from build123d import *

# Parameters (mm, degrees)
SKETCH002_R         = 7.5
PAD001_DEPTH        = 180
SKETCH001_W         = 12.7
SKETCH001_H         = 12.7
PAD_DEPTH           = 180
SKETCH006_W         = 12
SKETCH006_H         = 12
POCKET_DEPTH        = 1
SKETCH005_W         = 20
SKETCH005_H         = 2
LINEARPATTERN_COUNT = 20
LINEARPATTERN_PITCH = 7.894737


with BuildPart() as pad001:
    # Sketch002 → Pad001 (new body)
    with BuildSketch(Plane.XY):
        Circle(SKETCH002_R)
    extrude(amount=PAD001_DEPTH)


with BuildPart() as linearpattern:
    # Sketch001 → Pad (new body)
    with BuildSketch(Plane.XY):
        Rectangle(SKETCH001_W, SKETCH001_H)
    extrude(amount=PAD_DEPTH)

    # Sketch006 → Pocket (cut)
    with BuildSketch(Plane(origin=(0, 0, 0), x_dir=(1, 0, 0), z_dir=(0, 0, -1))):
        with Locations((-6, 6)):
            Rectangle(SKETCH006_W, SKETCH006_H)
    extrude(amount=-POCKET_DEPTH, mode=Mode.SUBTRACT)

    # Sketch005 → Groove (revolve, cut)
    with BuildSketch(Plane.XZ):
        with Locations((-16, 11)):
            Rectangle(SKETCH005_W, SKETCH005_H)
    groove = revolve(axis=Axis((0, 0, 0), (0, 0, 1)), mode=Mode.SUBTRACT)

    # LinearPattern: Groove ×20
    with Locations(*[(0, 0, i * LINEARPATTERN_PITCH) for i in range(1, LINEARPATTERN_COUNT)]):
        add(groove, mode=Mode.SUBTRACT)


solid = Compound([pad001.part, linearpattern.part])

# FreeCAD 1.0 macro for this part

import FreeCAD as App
import Part
import Sketcher

doc = App.newDocument("Part")
body = doc.addObject("PartDesign::Body", "Body")

sketch1 = body.newObject("Sketcher::SketchObject", "Sketch")
sketch1.AttachmentSupport = (doc.getObject("XY_Plane"), [""])
sketch1.MapMode = "FlatFace"
sketch1.addGeometry(Part.Circle(App.Vector(0, 0, 0), App.Vector(0, 0, 1), 7.5), False)
sketch1.addConstraint(Sketcher.Constraint("Coincident", 0, 3, -1, 1))
sketch1.addConstraint(Sketcher.Constraint("Diameter", 0, 15.0))
pad1 = body.newObject("PartDesign::Pad", "Pad")
pad1.Profile = sketch1
pad1.Length = 180
body2 = doc.addObject("PartDesign::Body", "Body001")

sketch2 = body2.newObject("Sketcher::SketchObject", "Sketch001")
sketch2.AttachmentSupport = (doc.getObject("XY_Plane001"), [""])
sketch2.MapMode = "FlatFace"
sketch2.addGeometry(Part.LineSegment(App.Vector(-6.35, 6.35, 0), App.Vector(-6.35, -6.35, 0)), False)
sketch2.addGeometry(Part.LineSegment(App.Vector(-6.35, -6.35, 0), App.Vector(6.35, -6.35, 0)), False)
sketch2.addGeometry(Part.LineSegment(App.Vector(6.35, -6.35, 0), App.Vector(6.35, 6.35, 0)), False)
sketch2.addGeometry(Part.LineSegment(App.Vector(6.35, 6.35, 0), App.Vector(-6.35, 6.35, 0)), False)
sketch2.addConstraint(Sketcher.Constraint("Coincident", 0, 2, 1, 1))
sketch2.addConstraint(Sketcher.Constraint("Coincident", 1, 2, 2, 1))
sketch2.addConstraint(Sketcher.Constraint("Coincident", 2, 2, 3, 1))
sketch2.addConstraint(Sketcher.Constraint("Coincident", 3, 2, 0, 1))
sketch2.addConstraint(Sketcher.Constraint("Vertical", 0))
sketch2.addConstraint(Sketcher.Constraint("Horizontal", 1))
sketch2.addConstraint(Sketcher.Constraint("Vertical", 2))
sketch2.addConstraint(Sketcher.Constraint("Horizontal", 3))
sketch2.addConstraint(Sketcher.Constraint("Symmetric", 0, 2, 2, 2, -1, 1))
sketch2.addConstraint(Sketcher.Constraint("Equal", 3, 0))
sketch2.addConstraint(Sketcher.Constraint("DistanceX", 1, 1, 1, 2, 12.7))
pad2 = body2.newObject("PartDesign::Pad", "Pad001")
pad2.Profile = sketch2
pad2.Length = 180

sketch3 = body2.newObject("Sketcher::SketchObject", "Sketch002")
sketch3.AttachmentSupport = (doc.getObject("XY_Plane001"), [""])
sketch3.MapMode = "FlatFace"
sketch3.addGeometry(Part.LineSegment(App.Vector(-12, -12, 0), App.Vector(-12, 0, 0)), False)
sketch3.addGeometry(Part.LineSegment(App.Vector(-12, 0, 0), App.Vector(0, 0, 0)), False)
sketch3.addGeometry(Part.LineSegment(App.Vector(0, 0, 0), App.Vector(0, -12, 0)), False)
sketch3.addGeometry(Part.LineSegment(App.Vector(0, -12, 0), App.Vector(-12, -12, 0)), False)
sketch3.addConstraint(Sketcher.Constraint("Coincident", 0, 2, 1, 1))
sketch3.addConstraint(Sketcher.Constraint("Coincident", 1, 2, 2, 1))
sketch3.addConstraint(Sketcher.Constraint("Coincident", 2, 2, 3, 1))
sketch3.addConstraint(Sketcher.Constraint("Coincident", 3, 2, 0, 1))
sketch3.addConstraint(Sketcher.Constraint("Vertical", 0))
sketch3.addConstraint(Sketcher.Constraint("Horizontal", 1))
sketch3.addConstraint(Sketcher.Constraint("Vertical", 2))
sketch3.addConstraint(Sketcher.Constraint("Horizontal", 3))
sketch3.addConstraint(Sketcher.Constraint("Coincident", 1, 2, -1, 1))
sketch3.addConstraint(Sketcher.Constraint("Equal", 3, 0))
sketch3.addConstraint(Sketcher.Constraint("DistanceX", 1, 1, 1, 2, 12.0))
pocket1 = body2.newObject("PartDesign::Pocket", "Pocket")
pocket1.Profile = sketch3
pocket1.Length = 1
pocket1.Reversed = True

sketch4 = body2.newObject("Sketcher::SketchObject", "Sketch003")
sketch4.AttachmentSupport = (doc.getObject("XZ_Plane001"), [""])
sketch4.MapMode = "FlatFace"
sketch4.addGeometry(Part.LineSegment(App.Vector(-26, 12, 0), App.Vector(-26, 10, 0)), False)
sketch4.addGeometry(Part.LineSegment(App.Vector(-26, 10, 0), App.Vector(-6, 10, 0)), False)
sketch4.addGeometry(Part.LineSegment(App.Vector(-6, 10, 0), App.Vector(-6, 12, 0)), False)
sketch4.addGeometry(Part.LineSegment(App.Vector(-6, 12, 0), App.Vector(-26, 12, 0)), False)
sketch4.addConstraint(Sketcher.Constraint("Coincident", 0, 2, 1, 1))
sketch4.addConstraint(Sketcher.Constraint("Coincident", 1, 2, 2, 1))
sketch4.addConstraint(Sketcher.Constraint("Coincident", 2, 2, 3, 1))
sketch4.addConstraint(Sketcher.Constraint("Coincident", 3, 2, 0, 1))
sketch4.addConstraint(Sketcher.Constraint("Vertical", 0))
sketch4.addConstraint(Sketcher.Constraint("Horizontal", 1))
sketch4.addConstraint(Sketcher.Constraint("Vertical", 2))
sketch4.addConstraint(Sketcher.Constraint("Horizontal", 3))
sketch4.addConstraint(Sketcher.Constraint("DistanceX", 1, 1, 1, 2, 20.0))
sketch4.addConstraint(Sketcher.Constraint("DistanceY", 0, 2, 0, 1, 2.0))
sketch4.addConstraint(Sketcher.Constraint("DistanceX", 0, 2, -1, 1, 26.0))
sketch4.addConstraint(Sketcher.Constraint("DistanceY", -1, 1, 0, 2, 10.0))
groove = body2.newObject("PartDesign::Groove", "Groove")
groove.Profile = sketch4
groove.ReferenceAxis = (sketch4, ["V_Axis"])
groove.Angle = 360
doc.recompute()

linearpattern = body2.newObject("PartDesign::LinearPattern", "LinearPattern")
linearpattern.Originals = [groove]
linearpattern.Direction = (doc.getObject("Z_Axis001"), [""])
linearpattern.Mode = "offset"
linearpattern.Offset = 7.894737
linearpattern.Occurrences = 20
body2.Tip = linearpattern

doc.recompute()
